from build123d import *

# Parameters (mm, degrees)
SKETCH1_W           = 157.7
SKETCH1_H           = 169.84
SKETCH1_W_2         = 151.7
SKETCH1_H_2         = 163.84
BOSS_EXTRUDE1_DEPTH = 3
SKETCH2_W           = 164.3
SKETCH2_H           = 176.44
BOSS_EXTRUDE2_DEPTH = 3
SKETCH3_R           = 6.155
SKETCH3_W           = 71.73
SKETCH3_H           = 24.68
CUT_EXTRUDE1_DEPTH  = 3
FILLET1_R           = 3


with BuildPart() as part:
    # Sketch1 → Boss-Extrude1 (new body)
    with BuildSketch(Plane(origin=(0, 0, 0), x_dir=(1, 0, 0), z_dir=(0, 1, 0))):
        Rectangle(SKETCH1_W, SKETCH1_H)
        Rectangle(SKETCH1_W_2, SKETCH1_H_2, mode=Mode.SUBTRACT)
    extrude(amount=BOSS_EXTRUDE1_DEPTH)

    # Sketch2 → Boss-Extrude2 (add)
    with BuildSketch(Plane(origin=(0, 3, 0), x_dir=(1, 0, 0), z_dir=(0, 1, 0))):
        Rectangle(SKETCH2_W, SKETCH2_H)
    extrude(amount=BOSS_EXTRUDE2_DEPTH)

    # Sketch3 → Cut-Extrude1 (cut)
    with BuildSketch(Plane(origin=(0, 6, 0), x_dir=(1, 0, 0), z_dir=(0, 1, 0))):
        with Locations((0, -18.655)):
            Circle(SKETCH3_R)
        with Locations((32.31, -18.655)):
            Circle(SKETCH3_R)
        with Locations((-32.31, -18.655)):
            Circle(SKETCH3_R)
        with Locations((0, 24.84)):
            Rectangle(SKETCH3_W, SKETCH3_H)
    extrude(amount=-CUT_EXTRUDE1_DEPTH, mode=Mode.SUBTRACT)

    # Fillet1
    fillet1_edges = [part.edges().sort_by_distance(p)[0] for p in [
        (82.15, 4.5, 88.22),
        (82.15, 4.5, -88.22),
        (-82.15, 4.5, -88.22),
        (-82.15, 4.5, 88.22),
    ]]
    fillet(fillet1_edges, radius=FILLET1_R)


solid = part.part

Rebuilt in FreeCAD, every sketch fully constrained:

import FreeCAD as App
import Part
import Sketcher
from FreeCAD import Vector
Q = App.Units.Quantity


def edges_at(feature, points):
    """Names of the edges that pass closest to the given points."""
    edges = feature.Shape.Edges
    near = lambda p: min(range(len(edges)), key=lambda i: edges[i].distToShape(Part.Vertex(*p))[0])
    return sorted({f"Edge{near(p) + 1}" for p in points})

doc = App.newDocument("Part")
body = doc.addObject("PartDesign::Body", "Body")

# Sketch on XZ plane
sketch1 = body.newObject("Sketcher::SketchObject", "Sketch")
sketch1.AttachmentSupport = (doc.getObject("XZ_Plane"), [""])
sketch1.MapMode = "FlatFace"
sketch1.addGeometry([
    Part.LineSegment(Vector(-78.85, -84.92, 0), Vector(-78.85, 84.92, 0)),  # 0
    Part.LineSegment(Vector(-78.85, 84.92, 0), Vector(78.85, 84.92, 0)),  # 1
    Part.LineSegment(Vector(78.85, 84.92, 0), Vector(78.85, -84.92, 0)),  # 2
    Part.LineSegment(Vector(78.85, -84.92, 0), Vector(-78.85, -84.92, 0)),  # 3
    Part.LineSegment(Vector(75.85, 81.92, 0), Vector(-75.85, 81.92, 0)),  # 4
    Part.LineSegment(Vector(-75.85, 81.92, 0), Vector(-75.85, -81.92, 0)),  # 5
    Part.LineSegment(Vector(-75.85, -81.92, 0), Vector(75.85, -81.92, 0)),  # 6
    Part.LineSegment(Vector(75.85, -81.92, 0), Vector(75.85, 81.92, 0)),  # 7
], False)
sketch1.addConstraint([
    Sketcher.Constraint("Coincident", 0, 2, 1, 1),
    Sketcher.Constraint("Coincident", 1, 2, 2, 1),
    Sketcher.Constraint("Coincident", 2, 2, 3, 1),
    Sketcher.Constraint("Coincident", 3, 2, 0, 1),
    Sketcher.Constraint("Coincident", 4, 2, 5, 1),
    Sketcher.Constraint("Coincident", 5, 2, 6, 1),
    Sketcher.Constraint("Coincident", 6, 2, 7, 1),
    Sketcher.Constraint("Coincident", 7, 2, 4, 1),
    Sketcher.Constraint("Vertical", 0),
    Sketcher.Constraint("Horizontal", 1),
    Sketcher.Constraint("Vertical", 2),
    Sketcher.Constraint("Horizontal", 3),
    Sketcher.Constraint("Horizontal", 4),
    Sketcher.Constraint("Vertical", 5),
    Sketcher.Constraint("Horizontal", 6),
    Sketcher.Constraint("Vertical", 7),
    Sketcher.Constraint("Symmetric", 0, 2, 2, 2, -1, 1),
    Sketcher.Constraint("Symmetric", 4, 2, 6, 2, -1, 1),
    Sketcher.Constraint("DistanceX", 1, 1, 1, 2, Q("157.7 mm")),
    Sketcher.Constraint("DistanceX", 4, 2, 4, 1, Q("151.7 mm")),
    Sketcher.Constraint("DistanceY", 4, 2, 0, 2, Q("3 mm")),
    Sketcher.Constraint("DistanceY", 0, 1, 0, 2, Q("169.84 mm")),
])
pad1 = body.newObject("PartDesign::Pad", "Pad")
pad1.Profile = sketch1
pad1.Length = 3
pad1.Reversed = True

# Sketch on XZ plane
sketch2 = body.newObject("Sketcher::SketchObject", "Sketch001")
sketch2.AttachmentSupport = (doc.getObject("XZ_Plane"), [""])
sketch2.MapMode = "FlatFace"
sketch2.AttachmentOffset = App.Placement(Vector(0, 0, -3), App.Rotation())
sketch2.addGeometry([
    Part.LineSegment(Vector(-82.15, -88.22, 0), Vector(-82.15, 88.22, 0)),
    Part.LineSegment(Vector(-82.15, 88.22, 0), Vector(82.15, 88.22, 0)),
    Part.LineSegment(Vector(82.15, 88.22, 0), Vector(82.15, -88.22, 0)),
    Part.LineSegment(Vector(82.15, -88.22, 0), Vector(-82.15, -88.22, 0)),
], False)
sketch2.addConstraint([
    Sketcher.Constraint("Coincident", 0, 2, 1, 1),
    Sketcher.Constraint("Coincident", 1, 2, 2, 1),
    Sketcher.Constraint("Coincident", 2, 2, 3, 1),
    Sketcher.Constraint("Coincident", 3, 2, 0, 1),
    Sketcher.Constraint("Vertical", 0),
    Sketcher.Constraint("Horizontal", 1),
    Sketcher.Constraint("Vertical", 2),
    Sketcher.Constraint("Horizontal", 3),
    Sketcher.Constraint("Symmetric", 0, 2, 2, 2, -1, 1),
    Sketcher.Constraint("DistanceX", 1, 1, 1, 2, Q("164.3 mm")),
    Sketcher.Constraint("DistanceY", 0, 1, 0, 2, Q("176.44 mm")),
])
pad2 = body.newObject("PartDesign::Pad", "Pad001")
pad2.Profile = sketch2
pad2.Length = 3
pad2.Reversed = True

# Sketch on XZ plane
sketch3 = body.newObject("Sketcher::SketchObject", "Sketch002")
sketch3.AttachmentSupport = (doc.getObject("XZ_Plane"), [""])
sketch3.MapMode = "FlatFace"
sketch3.AttachmentOffset = App.Placement(Vector(0, 0, -6), App.Rotation())
sketch3.addGeometry([
    Part.Circle(Vector(0, 18.655, 0), Vector(0, 0, 1), 6.155),  # 0
    Part.Circle(Vector(32.31, 18.655, 0), Vector(0, 0, 1), 6.155),  # 1
    Part.Circle(Vector(-32.31, 18.655, 0), Vector(0, 0, 1), 6.155),  # 2
    Part.LineSegment(Vector(-35.865, -37.18, 0), Vector(-35.865, -12.5, 0)),  # 3
    Part.LineSegment(Vector(-35.865, -12.5, 0), Vector(35.865, -12.5, 0)),  # 4
    Part.LineSegment(Vector(35.865, -12.5, 0), Vector(35.865, -37.18, 0)),  # 5
    Part.LineSegment(Vector(35.865, -37.18, 0), Vector(-35.865, -37.18, 0)),  # 6
], False)
sketch3.addConstraint([
    Sketcher.Constraint("Coincident", 3, 2, 4, 1),
    Sketcher.Constraint("Coincident", 4, 2, 5, 1),
    Sketcher.Constraint("Coincident", 5, 2, 6, 1),
    Sketcher.Constraint("Coincident", 6, 2, 3, 1),
    Sketcher.Constraint("Vertical", 3),
    Sketcher.Constraint("Horizontal", 4),
    Sketcher.Constraint("Vertical", 5),
    Sketcher.Constraint("Horizontal", 6),
    Sketcher.Constraint("Equal", 0, 1),
    Sketcher.Constraint("Equal", 1, 2),
    Sketcher.Constraint("Symmetric", 1, 3, 2, 3, -2),
    Sketcher.Constraint("PointOnObject", 0, 3, -2),
    Sketcher.Constraint("Horizontal", 0, 3, 1, 3),
    Sketcher.Constraint("Diameter", 0, Q("12.31 mm")),
    Sketcher.Constraint("DistanceX", 4, 1, 4, 2, Q("71.73 mm")),
    Sketcher.Constraint("DistanceY", 3, 1, 3, 2, Q("24.68 mm")),
    Sketcher.Constraint("DistanceY", 3, 2, -1, 1, Q("12.5 mm")),
    Sketcher.Constraint("DistanceX", -1, 1, 1, 3, Q("32.31 mm")),
    Sketcher.Constraint("DistanceY", -1, 1, 0, 3, Q("18.655 mm")),
    Sketcher.Constraint("DistanceX", 3, 2, -1, 1, Q("35.865 mm")),
])
pocket1 = body.newObject("PartDesign::Pocket", "Pocket")
pocket1.Profile = sketch3
pocket1.Length = 3
pocket1.Reversed = True
doc.recompute()

fillet = body.newObject("PartDesign::Fillet", "Fillet")
fillet.Base = (pocket1, edges_at(pocket1, [
    (82.15, 4.5, 88.22),
    (82.15, 4.5, -88.22),
    (-82.15, 4.5, -88.22),
    (-82.15, 4.5, 88.22),
]))
fillet.Radius = 3

doc.recompute()
